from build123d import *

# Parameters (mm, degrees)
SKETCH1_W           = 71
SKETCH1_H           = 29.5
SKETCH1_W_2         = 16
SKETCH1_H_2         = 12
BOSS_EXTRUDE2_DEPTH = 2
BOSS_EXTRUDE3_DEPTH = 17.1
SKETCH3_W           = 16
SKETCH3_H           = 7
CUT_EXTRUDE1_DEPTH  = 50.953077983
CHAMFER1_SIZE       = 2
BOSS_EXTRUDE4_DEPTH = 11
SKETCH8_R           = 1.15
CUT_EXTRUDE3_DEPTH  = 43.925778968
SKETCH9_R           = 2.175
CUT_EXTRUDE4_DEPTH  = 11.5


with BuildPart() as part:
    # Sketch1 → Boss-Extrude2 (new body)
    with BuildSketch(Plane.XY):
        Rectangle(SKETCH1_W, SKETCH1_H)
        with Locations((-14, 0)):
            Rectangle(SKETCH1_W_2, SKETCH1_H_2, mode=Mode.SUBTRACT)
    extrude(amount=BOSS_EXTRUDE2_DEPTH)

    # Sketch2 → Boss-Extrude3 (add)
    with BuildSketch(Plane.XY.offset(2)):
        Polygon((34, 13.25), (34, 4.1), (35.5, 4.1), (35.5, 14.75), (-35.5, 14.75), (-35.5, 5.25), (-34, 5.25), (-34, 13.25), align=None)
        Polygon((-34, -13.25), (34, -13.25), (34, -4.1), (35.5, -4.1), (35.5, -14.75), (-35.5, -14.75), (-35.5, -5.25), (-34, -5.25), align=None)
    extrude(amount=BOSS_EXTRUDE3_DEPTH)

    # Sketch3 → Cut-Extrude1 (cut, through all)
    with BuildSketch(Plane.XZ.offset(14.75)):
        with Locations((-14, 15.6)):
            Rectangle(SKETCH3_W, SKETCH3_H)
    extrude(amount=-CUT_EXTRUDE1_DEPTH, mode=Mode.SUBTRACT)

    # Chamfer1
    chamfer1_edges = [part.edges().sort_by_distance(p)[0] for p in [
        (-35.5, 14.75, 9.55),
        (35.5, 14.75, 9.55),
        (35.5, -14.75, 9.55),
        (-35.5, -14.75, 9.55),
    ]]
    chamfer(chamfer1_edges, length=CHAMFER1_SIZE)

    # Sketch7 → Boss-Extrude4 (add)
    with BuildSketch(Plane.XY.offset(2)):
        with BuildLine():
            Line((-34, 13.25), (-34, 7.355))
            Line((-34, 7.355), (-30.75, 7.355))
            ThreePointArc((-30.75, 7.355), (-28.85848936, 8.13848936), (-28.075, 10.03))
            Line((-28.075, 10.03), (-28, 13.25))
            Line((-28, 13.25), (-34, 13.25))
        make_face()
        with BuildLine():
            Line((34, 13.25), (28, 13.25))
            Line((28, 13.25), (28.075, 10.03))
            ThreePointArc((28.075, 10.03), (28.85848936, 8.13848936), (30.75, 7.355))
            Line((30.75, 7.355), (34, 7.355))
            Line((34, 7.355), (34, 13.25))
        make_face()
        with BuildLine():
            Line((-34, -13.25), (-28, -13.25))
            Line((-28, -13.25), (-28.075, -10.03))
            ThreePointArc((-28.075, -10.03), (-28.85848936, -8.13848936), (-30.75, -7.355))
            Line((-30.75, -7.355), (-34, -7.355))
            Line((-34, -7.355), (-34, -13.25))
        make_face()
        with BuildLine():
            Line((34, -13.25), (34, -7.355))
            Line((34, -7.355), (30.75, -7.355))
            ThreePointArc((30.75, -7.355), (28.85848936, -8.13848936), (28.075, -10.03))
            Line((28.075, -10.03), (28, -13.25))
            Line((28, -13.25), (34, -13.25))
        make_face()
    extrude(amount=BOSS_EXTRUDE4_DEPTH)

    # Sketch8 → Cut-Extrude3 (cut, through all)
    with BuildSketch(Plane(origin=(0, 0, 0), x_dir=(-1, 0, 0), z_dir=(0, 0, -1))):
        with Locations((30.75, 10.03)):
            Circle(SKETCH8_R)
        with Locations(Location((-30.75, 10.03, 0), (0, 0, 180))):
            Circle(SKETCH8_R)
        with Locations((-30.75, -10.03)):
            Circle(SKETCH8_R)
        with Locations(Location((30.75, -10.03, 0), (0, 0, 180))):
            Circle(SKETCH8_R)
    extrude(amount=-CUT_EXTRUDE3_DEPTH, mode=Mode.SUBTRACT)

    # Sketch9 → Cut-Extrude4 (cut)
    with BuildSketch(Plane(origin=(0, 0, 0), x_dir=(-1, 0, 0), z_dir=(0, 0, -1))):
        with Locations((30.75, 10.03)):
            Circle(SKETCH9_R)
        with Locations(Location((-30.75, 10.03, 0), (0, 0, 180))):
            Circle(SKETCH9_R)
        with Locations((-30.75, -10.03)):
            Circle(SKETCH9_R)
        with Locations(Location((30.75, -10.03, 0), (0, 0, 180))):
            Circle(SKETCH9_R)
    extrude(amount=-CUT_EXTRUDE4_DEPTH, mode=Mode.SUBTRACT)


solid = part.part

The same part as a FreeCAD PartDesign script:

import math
import FreeCAD as App
import Part
import Sketcher
Q = App.Units.Quantity


def edges_at(feature, points):
    """Names of the edges that pass closest to the given points."""
    edges = feature.Shape.Edges
    near = lambda p: min(range(len(edges)), key=lambda i: edges[i].distToShape(Part.Vertex(*p))[0])
    return sorted({f"Edge{near(p) + 1}" for p in points})

doc = App.newDocument("Part")
body = doc.addObject("PartDesign::Body", "Body")

# Sketch on XY plane
sketch1 = body.newObject("Sketcher::SketchObject", "Sketch")
sketch1.AttachmentSupport = (doc.getObject("XY_Plane"), [""])
sketch1.MapMode = "FlatFace"
sketch1.addGeometry([
    Part.LineSegment(App.Vector(-35.5, 14.75, 0), App.Vector(-35.5, -14.75, 0)),  # 0
    Part.LineSegment(App.Vector(-35.5, -14.75, 0), App.Vector(35.5, -14.75, 0)),  # 1
    Part.LineSegment(App.Vector(35.5, -14.75, 0), App.Vector(35.5, 14.75, 0)),  # 2
    Part.LineSegment(App.Vector(35.5, 14.75, 0), App.Vector(-35.5, 14.75, 0)),  # 3
    Part.LineSegment(App.Vector(-6, -6, 0), App.Vector(-22, -6, 0)),  # 4
    Part.LineSegment(App.Vector(-22, -6, 0), App.Vector(-22, 6, 0)),  # 5
    Part.LineSegment(App.Vector(-22, 6, 0), App.Vector(-6, 6, 0)),  # 6
    Part.LineSegment(App.Vector(-6, 6, 0), App.Vector(-6, -6, 0)),  # 7
], False)
sketch1.addConstraint([
    Sketcher.Constraint("Coincident", 0, 2, 1, 1),
    Sketcher.Constraint("Coincident", 1, 2, 2, 1),
    Sketcher.Constraint("Coincident", 2, 2, 3, 1),
    Sketcher.Constraint("Coincident", 3, 2, 0, 1),
    Sketcher.Constraint("Coincident", 4, 2, 5, 1),
    Sketcher.Constraint("Coincident", 5, 2, 6, 1),
    Sketcher.Constraint("Coincident", 6, 2, 7, 1),
    Sketcher.Constraint("Coincident", 7, 2, 4, 1),
    Sketcher.Constraint("Vertical", 0),
    Sketcher.Constraint("Horizontal", 1),
    Sketcher.Constraint("Vertical", 2),
    Sketcher.Constraint("Horizontal", 3),
    Sketcher.Constraint("Horizontal", 4),
    Sketcher.Constraint("Vertical", 5),
    Sketcher.Constraint("Horizontal", 6),
    Sketcher.Constraint("Vertical", 7),
    Sketcher.Constraint("Symmetric", 0, 2, 2, 2, -1, 1),
    Sketcher.Constraint("DistanceX", 1, 1, 1, 2, Q("71 mm")),
    Sketcher.Constraint("DistanceX", 4, 2, 4, 1, Q("16 mm")),
    Sketcher.Constraint("DistanceY", 5, 1, 5, 2, Q("12 mm")),
    Sketcher.Constraint("DistanceY", 0, 2, 0, 1, Q("29.5 mm")),
    Sketcher.Constraint("DistanceX", 4, 2, -1, 1, Q("22 mm")),
    Sketcher.Constraint("DistanceY", 4, 2, -1, 1, Q("6 mm")),
])
pad1 = body.newObject("PartDesign::Pad", "Pad")
pad1.Profile = sketch1
pad1.Length = 2

# Sketch on XY plane
sketch2 = body.newObject("Sketcher::SketchObject", "Sketch001")
sketch2.AttachmentSupport = (doc.getObject("XY_Plane"), [""])
sketch2.MapMode = "FlatFace"
sketch2.AttachmentOffset = App.Placement(App.Vector(0, 0, 2), App.Rotation())
sketch2.addGeometry([
    Part.LineSegment(App.Vector(34, 13.25, 0), App.Vector(34, 4.1, 0)),  # 0
    Part.LineSegment(App.Vector(34, 4.1, 0), App.Vector(35.5, 4.1, 0)),  # 1
    Part.LineSegment(App.Vector(35.5, 4.1, 0), App.Vector(35.5, 14.75, 0)),  # 2
    Part.LineSegment(App.Vector(35.5, 14.75, 0), App.Vector(-35.5, 14.75, 0)),  # 3
    Part.LineSegment(App.Vector(-35.5, 14.75, 0), App.Vector(-35.5, 5.25, 0)),  # 4
    Part.LineSegment(App.Vector(-35.5, 5.25, 0), App.Vector(-34, 5.25, 0)),  # 5
    Part.LineSegment(App.Vector(-34, 5.25, 0), App.Vector(-34, 13.25, 0)),  # 6
    Part.LineSegment(App.Vector(-34, 13.25, 0), App.Vector(34, 13.25, 0)),  # 7
    Part.LineSegment(App.Vector(34, -13.25, 0), App.Vector(-34, -13.25, 0)),  # 8
    Part.LineSegment(App.Vector(-34, -13.25, 0), App.Vector(-34, -5.25, 0)),  # 9
    Part.LineSegment(App.Vector(-34, -5.25, 0), App.Vector(-35.5, -5.25, 0)),  # 10
    Part.LineSegment(App.Vector(-35.5, -5.25, 0), App.Vector(-35.5, -14.75, 0)),  # 11
    Part.LineSegment(App.Vector(-35.5, -14.75, 0), App.Vector(35.5, -14.75, 0)),  # 12
    Part.LineSegment(App.Vector(35.5, -14.75, 0), App.Vector(35.5, -4.1, 0)),  # 13
    Part.LineSegment(App.Vector(35.5, -4.1, 0), App.Vector(34, -4.1, 0)),  # 14
    Part.LineSegment(App.Vector(34, -4.1, 0), App.Vector(34, -13.25, 0)),  # 15
], False)
sketch2.addConstraint([
    Sketcher.Constraint("Coincident", 0, 2, 1, 1),
    Sketcher.Constraint("Coincident", 1, 2, 2, 1),
    Sketcher.Constraint("Coincident", 2, 2, 3, 1),
    Sketcher.Constraint("Coincident", 3, 2, 4, 1),
    Sketcher.Constraint("Coincident", 4, 2, 5, 1),
    Sketcher.Constraint("Coincident", 5, 2, 6, 1),
    Sketcher.Constraint("Coincident", 6, 2, 7, 1),
    Sketcher.Constraint("Coincident", 7, 2, 0, 1),
    Sketcher.Constraint("Coincident", 8, 2, 9, 1),
    Sketcher.Constraint("Coincident", 9, 2, 10, 1),
    Sketcher.Constraint("Coincident", 10, 2, 11, 1),
    Sketcher.Constraint("Coincident", 11, 2, 12, 1),
    Sketcher.Constraint("Coincident", 12, 2, 13, 1),
    Sketcher.Constraint("Coincident", 13, 2, 14, 1),
    Sketcher.Constraint("Coincident", 14, 2, 15, 1),
    Sketcher.Constraint("Coincident", 15, 2, 8, 1),
    Sketcher.Constraint("Vertical", 0),
    Sketcher.Constraint("Horizontal", 1),
    Sketcher.Constraint("Vertical", 2),
    Sketcher.Constraint("Horizontal", 3),
    Sketcher.Constraint("Vertical", 4),
    Sketcher.Constraint("Horizontal", 5),
    Sketcher.Constraint("Vertical", 6),
    Sketcher.Constraint("Horizontal", 7),
    Sketcher.Constraint("Horizontal", 8),
    Sketcher.Constraint("Vertical", 9),
    Sketcher.Constraint("Horizontal", 10),
    Sketcher.Constraint("Vertical", 11),
    Sketcher.Constraint("Horizontal", 12),
    Sketcher.Constraint("Vertical", 13),
    Sketcher.Constraint("Horizontal", 14),
    Sketcher.Constraint("Vertical", 15),
    Sketcher.Constraint("Symmetric", 7, 2, 8, 2, -1, 1),
    Sketcher.Constraint("Symmetric", 2, 2, 11, 2, -1, 1),
    Sketcher.Constraint("Symmetric", 5, 2, 9, 2, -1),
    Sketcher.Constraint("Symmetric", 1, 2, 13, 2, -1),
    Sketcher.Constraint("Vertical", 4, 2, 10, 2),
    Sketcher.Constraint("Vertical", 7, 2, 14, 2),
    Sketcher.Constraint("DistanceX", 3, 2, 3, 1, Q("71 mm")),
    Sketcher.Constraint("DistanceX", 7, 1, 7, 2, Q("68 mm")),
    Sketcher.Constraint("DistanceY", 6, 1, 6, 2, Q("8 mm")),
    Sketcher.Constraint("DistanceY", 4, 2, 4, 1, Q("9.5 mm")),
    Sketcher.Constraint("DistanceY", 8, 2, 3, 2, Q("28 mm")),
    Sketcher.Constraint("DistanceY", 0, 2, 0, 1, Q("9.15 mm")),
])
pad2 = body.newObject("PartDesign::Pad", "Pad001")
pad2.Profile = sketch2
pad2.Length = 17.1

# Sketch on XZ plane
sketch3 = body.newObject("Sketcher::SketchObject", "Sketch002")
sketch3.AttachmentSupport = (doc.getObject("XZ_Plane"), [""])
sketch3.MapMode = "FlatFace"
sketch3.AttachmentOffset = App.Placement(App.Vector(0, 0, 14.75), App.Rotation())
sketch3.addGeometry([
    Part.LineSegment(App.Vector(-22, 19.1, 0), App.Vector(-22, 12.1, 0)),
    Part.LineSegment(App.Vector(-22, 12.1, 0), App.Vector(-6, 12.1, 0)),
    Part.LineSegment(App.Vector(-6, 12.1, 0), App.Vector(-6, 19.1, 0)),
    Part.LineSegment(App.Vector(-6, 19.1, 0), App.Vector(-22, 19.1, 0)),
], False)
sketch3.addConstraint([
    Sketcher.Constraint("Coincident", 0, 2, 1, 1),
    Sketcher.Constraint("Coincident", 1, 2, 2, 1),
    Sketcher.Constraint("Coincident", 2, 2, 3, 1),
    Sketcher.Constraint("Coincident", 3, 2, 0, 1),
    Sketcher.Constraint("Vertical", 0),
    Sketcher.Constraint("Horizontal", 1),
    Sketcher.Constraint("Vertical", 2),
    Sketcher.Constraint("Horizontal", 3),
    Sketcher.Constraint("DistanceX", 1, 1, 1, 2, Q("16 mm")),
    Sketcher.Constraint("DistanceY", 0, 2, 0, 1, Q("7 mm")),
    Sketcher.Constraint("DistanceX", 0, 2, -1, 1, Q("22 mm")),
    Sketcher.Constraint("DistanceY", -1, 1, 0, 2, Q("12.1 mm")),
])
pocket1 = body.newObject("PartDesign::Pocket", "Pocket")
pocket1.Profile = sketch3
pocket1.Type = "ThroughAll"
doc.recompute()

chamfer = body.newObject("PartDesign::Chamfer", "Chamfer")
chamfer.Base = (pocket1, edges_at(pocket1, [
    (-35.5, 14.75, 9.55),
    (35.5, 14.75, 9.55),
    (35.5, -14.75, 9.55),
    (-35.5, -14.75, 9.55),
]))
chamfer.Size = 2

# Sketch on XY plane
sketch4 = body.newObject("Sketcher::SketchObject", "Sketch003")
sketch4.AttachmentSupport = (doc.getObject("XY_Plane"), [""])
sketch4.MapMode = "FlatFace"
sketch4.AttachmentOffset = App.Placement(App.Vector(0, 0, 2), App.Rotation())
sketch4.addGeometry([
    Part.LineSegment(App.Vector(-34, 13.25, 0), App.Vector(-34, 7.355, 0)),  # 0
    Part.LineSegment(App.Vector(-34, 7.355, 0), App.Vector(-30.75, 7.355, 0)),  # 1
    Part.ArcOfCircle(Part.Circle(App.Vector(-30.75, 10.03, 0), App.Vector(0, 0, 1), 2.675), math.radians(-90), math.radians(0)),  # 2
    Part.LineSegment(App.Vector(-28.075, 10.03, 0), App.Vector(-28, 13.25, 0)),  # 3
    Part.LineSegment(App.Vector(-28, 13.25, 0), App.Vector(-34, 13.25, 0)),  # 4
    Part.LineSegment(App.Vector(34, 13.25, 0), App.Vector(28, 13.25, 0)),  # 5
    Part.LineSegment(App.Vector(28, 13.25, 0), App.Vector(28.075, 10.03, 0)),  # 6
    Part.ArcOfCircle(Part.Circle(App.Vector(30.75, 10.03, 0), App.Vector(0, 0, 1), 2.675), math.radians(180), math.radians(270)),  # 7
    Part.LineSegment(App.Vector(30.75, 7.355, 0), App.Vector(34, 7.355, 0)),  # 8
    Part.LineSegment(App.Vector(34, 7.355, 0), App.Vector(34, 13.25, 0)),  # 9
    Part.LineSegment(App.Vector(-34, -13.25, 0), App.Vector(-28, -13.25, 0)),  # 10
    Part.LineSegment(App.Vector(-28, -13.25, 0), App.Vector(-28.075, -10.03, 0)),  # 11
    Part.ArcOfCircle(Part.Circle(App.Vector(-30.75, -10.03, 0), App.Vector(0, 0, 1), 2.675), math.radians(0), math.radians(90)),  # 12
    Part.LineSegment(App.Vector(-30.75, -7.355, 0), App.Vector(-34, -7.355, 0)),  # 13
    Part.LineSegment(App.Vector(-34, -7.355, 0), App.Vector(-34, -13.25, 0)),  # 14
    Part.LineSegment(App.Vector(34, -13.25, 0), App.Vector(34, -7.355, 0)),  # 15
    Part.LineSegment(App.Vector(34, -7.355, 0), App.Vector(30.75, -7.355, 0)),  # 16
    Part.ArcOfCircle(Part.Circle(App.Vector(30.75, -10.03, 0), App.Vector(0, 0, 1), 2.675), math.radians(90), math.radians(180)),  # 17
    Part.LineSegment(App.Vector(28.075, -10.03, 0), App.Vector(28, -13.25, 0)),  # 18
    Part.LineSegment(App.Vector(28, -13.25, 0), App.Vector(34, -13.25, 0)),  # 19
], False)
sketch4.addConstraint([
    Sketcher.Constraint("Coincident", 0, 2, 1, 1),
    Sketcher.Constraint("Tangent", 1, 2, 2, 1),
    Sketcher.Constraint("Coincident", 2, 2, 3, 1),
    Sketcher.Constraint("Coincident", 3, 2, 4, 1),
    Sketcher.Constraint("Coincident", 4, 2, 0, 1),
    Sketcher.Constraint("Coincident", 5, 2, 6, 1),
    Sketcher.Constraint("Coincident", 6, 2, 7, 1),
    Sketcher.Constraint("Tangent", 7, 2, 8, 1),
    Sketcher.Constraint("Coincident", 8, 2, 9, 1),
    Sketcher.Constraint("Coincident", 9, 2, 5, 1),
    Sketcher.Constraint("Coincident", 10, 2, 11, 1),
    Sketcher.Constraint("Coincident", 11, 2, 12, 1),
    Sketcher.Constraint("Tangent", 12, 2, 13, 1),
    Sketcher.Constraint("Coincident", 13, 2, 14, 1),
    Sketcher.Constraint("Coincident", 14, 2, 10, 1),
    Sketcher.Constraint("Coincident", 15, 2, 16, 1),
    Sketcher.Constraint("Tangent", 16, 2, 17, 1),
    Sketcher.Constraint("Coincident", 17, 2, 18, 1),
    Sketcher.Constraint("Coincident", 18, 2, 19, 1),
    Sketcher.Constraint("Coincident", 19, 2, 15, 1),
    Sketcher.Constraint("Vertical", 0),
    Sketcher.Constraint("Horizontal", 1),
    Sketcher.Constraint("Horizontal", 4),
    Sketcher.Constraint("Horizontal", 5),
    Sketcher.Constraint("Horizontal", 8),
    Sketcher.Constraint("Vertical", 9),
    Sketcher.Constraint("Horizontal", 10),
    Sketcher.Constraint("Horizontal", 13),
    Sketcher.Constraint("Vertical", 14),
    Sketcher.Constraint("Vertical", 15),
    Sketcher.Constraint("Horizontal", 16),
    Sketcher.Constraint("Horizontal", 19),
    Sketcher.Constraint("Equal", 2, 7),
    Sketcher.Constraint("Equal", 7, 12),
    Sketcher.Constraint("Equal", 12, 17),
    Sketcher.Constraint("Symmetric", 7, 3, 12, 3, -1, 1),
    Sketcher.Constraint("Symmetric", 2, 3, 17, 3, -1, 1),
    Sketcher.Constraint("Symmetric", 5, 2, 10, 2, -1, 1),
    Sketcher.Constraint("Symmetric", 3, 2, 18, 2, -1, 1),
    Sketcher.Constraint("Symmetric", 2, 3, 7, 3, -2),
    Sketcher.Constraint("Symmetric", 3, 2, 5, 2, -2),
    Sketcher.Constraint("Parallel", 6, 11),
    Sketcher.Constraint("Parallel", 3, 18),
    Sketcher.Constraint("Horizontal", 7, 3, 2, 2),
    Sketcher.Constraint("Horizontal", 2, 2, 6, 2),
    Sketcher.Constraint("Vertical", 4, 2, 13, 2),
    Sketcher.Constraint("Vertical", 9, 2, 15, 2),
    Sketcher.Constraint("Equal", 4, 5),
    Sketcher.Constraint("DistanceX", 4, 2, 4, 1, Q("6 mm")),
    Sketcher.Constraint("DistanceX", 0, 2, -1, 1, Q("34 mm")),
    Sketcher.Constraint("Radius", 2, Q("2.675 mm")),
    Sketcher.Constraint("DistanceX", 1, 1, 1, 2, Q("3.25 mm")),
    Sketcher.Constraint("DistanceY", 0, 2, 0, 1, Q("5.895 mm")),
    Sketcher.Constraint("DistanceY", -1, 1, 2, 3, Q("10.03 mm")),
])
pad3 = body.newObject("PartDesign::Pad", "Pad002")
pad3.Profile = sketch4
pad3.Length = 11

# Sketch on XY plane
sketch5 = body.newObject("Sketcher::SketchObject", "Sketch004")
sketch5.AttachmentSupport = (doc.getObject("XY_Plane"), [""])
sketch5.MapMode = "FlatFace"
sketch5.addGeometry([
    Part.Circle(App.Vector(-30.75, 10.03, 0), App.Vector(0, 0, 1), 1.15),
    Part.Circle(App.Vector(30.75, 10.03, 0), App.Vector(0, 0, 1), 1.15),
    Part.Circle(App.Vector(30.75, -10.03, 0), App.Vector(0, 0, 1), 1.15),
    Part.Circle(App.Vector(-30.75, -10.03, 0), App.Vector(0, 0, 1), 1.15),
], False)
sketch5.addConstraint([
    Sketcher.Constraint("Equal", 0, 1),
    Sketcher.Constraint("Equal", 1, 2),
    Sketcher.Constraint("Equal", 2, 3),
    Sketcher.Constraint("Symmetric", 0, 3, 2, 3, -1, 1),
    Sketcher.Constraint("Symmetric", 1, 3, 3, 3, -1, 1),
    Sketcher.Constraint("Symmetric", 0, 3, 1, 3, -2),
    Sketcher.Constraint("Diameter", 0, Q("2.3 mm")),
    Sketcher.Constraint("DistanceX", 0, 3, 1, 3, Q("61.5 mm")),
    Sketcher.Constraint("DistanceY", -1, 1, 0, 3, Q("10.03 mm")),
])
pocket2 = body.newObject("PartDesign::Pocket", "Pocket001")
pocket2.Profile = sketch5
pocket2.Type = "ThroughAll"
pocket2.Reversed = True

# Sketch on XY plane
sketch6 = body.newObject("Sketcher::SketchObject", "Sketch005")
sketch6.AttachmentSupport = (doc.getObject("XY_Plane"), [""])
sketch6.MapMode = "FlatFace"
sketch6.addGeometry([
    Part.Circle(App.Vector(-30.75, 10.03, 0), App.Vector(0, 0, 1), 2.175),
    Part.Circle(App.Vector(30.75, 10.03, 0), App.Vector(0, 0, 1), 2.175),
    Part.Circle(App.Vector(30.75, -10.03, 0), App.Vector(0, 0, 1), 2.175),
    Part.Circle(App.Vector(-30.75, -10.03, 0), App.Vector(0, 0, 1), 2.175),
], False)
sketch6.addConstraint([
    Sketcher.Constraint("Equal", 0, 1),
    Sketcher.Constraint("Equal", 1, 2),
    Sketcher.Constraint("Equal", 2, 3),
    Sketcher.Constraint("Symmetric", 0, 3, 2, 3, -1, 1),
    Sketcher.Constraint("Symmetric", 1, 3, 3, 3, -1, 1),
    Sketcher.Constraint("Symmetric", 0, 3, 1, 3, -2),
    Sketcher.Constraint("Diameter", 0, Q("4.35 mm")),
    Sketcher.Constraint("DistanceX", 0, 3, 1, 3, Q("61.5 mm")),
    Sketcher.Constraint("DistanceY", -1, 1, 0, 3, Q("10.03 mm")),
])
pocket3 = body.newObject("PartDesign::Pocket", "Pocket002")
pocket3.Profile = sketch6
pocket3.Length = 11.5
pocket3.Reversed = True

doc.recompute()
